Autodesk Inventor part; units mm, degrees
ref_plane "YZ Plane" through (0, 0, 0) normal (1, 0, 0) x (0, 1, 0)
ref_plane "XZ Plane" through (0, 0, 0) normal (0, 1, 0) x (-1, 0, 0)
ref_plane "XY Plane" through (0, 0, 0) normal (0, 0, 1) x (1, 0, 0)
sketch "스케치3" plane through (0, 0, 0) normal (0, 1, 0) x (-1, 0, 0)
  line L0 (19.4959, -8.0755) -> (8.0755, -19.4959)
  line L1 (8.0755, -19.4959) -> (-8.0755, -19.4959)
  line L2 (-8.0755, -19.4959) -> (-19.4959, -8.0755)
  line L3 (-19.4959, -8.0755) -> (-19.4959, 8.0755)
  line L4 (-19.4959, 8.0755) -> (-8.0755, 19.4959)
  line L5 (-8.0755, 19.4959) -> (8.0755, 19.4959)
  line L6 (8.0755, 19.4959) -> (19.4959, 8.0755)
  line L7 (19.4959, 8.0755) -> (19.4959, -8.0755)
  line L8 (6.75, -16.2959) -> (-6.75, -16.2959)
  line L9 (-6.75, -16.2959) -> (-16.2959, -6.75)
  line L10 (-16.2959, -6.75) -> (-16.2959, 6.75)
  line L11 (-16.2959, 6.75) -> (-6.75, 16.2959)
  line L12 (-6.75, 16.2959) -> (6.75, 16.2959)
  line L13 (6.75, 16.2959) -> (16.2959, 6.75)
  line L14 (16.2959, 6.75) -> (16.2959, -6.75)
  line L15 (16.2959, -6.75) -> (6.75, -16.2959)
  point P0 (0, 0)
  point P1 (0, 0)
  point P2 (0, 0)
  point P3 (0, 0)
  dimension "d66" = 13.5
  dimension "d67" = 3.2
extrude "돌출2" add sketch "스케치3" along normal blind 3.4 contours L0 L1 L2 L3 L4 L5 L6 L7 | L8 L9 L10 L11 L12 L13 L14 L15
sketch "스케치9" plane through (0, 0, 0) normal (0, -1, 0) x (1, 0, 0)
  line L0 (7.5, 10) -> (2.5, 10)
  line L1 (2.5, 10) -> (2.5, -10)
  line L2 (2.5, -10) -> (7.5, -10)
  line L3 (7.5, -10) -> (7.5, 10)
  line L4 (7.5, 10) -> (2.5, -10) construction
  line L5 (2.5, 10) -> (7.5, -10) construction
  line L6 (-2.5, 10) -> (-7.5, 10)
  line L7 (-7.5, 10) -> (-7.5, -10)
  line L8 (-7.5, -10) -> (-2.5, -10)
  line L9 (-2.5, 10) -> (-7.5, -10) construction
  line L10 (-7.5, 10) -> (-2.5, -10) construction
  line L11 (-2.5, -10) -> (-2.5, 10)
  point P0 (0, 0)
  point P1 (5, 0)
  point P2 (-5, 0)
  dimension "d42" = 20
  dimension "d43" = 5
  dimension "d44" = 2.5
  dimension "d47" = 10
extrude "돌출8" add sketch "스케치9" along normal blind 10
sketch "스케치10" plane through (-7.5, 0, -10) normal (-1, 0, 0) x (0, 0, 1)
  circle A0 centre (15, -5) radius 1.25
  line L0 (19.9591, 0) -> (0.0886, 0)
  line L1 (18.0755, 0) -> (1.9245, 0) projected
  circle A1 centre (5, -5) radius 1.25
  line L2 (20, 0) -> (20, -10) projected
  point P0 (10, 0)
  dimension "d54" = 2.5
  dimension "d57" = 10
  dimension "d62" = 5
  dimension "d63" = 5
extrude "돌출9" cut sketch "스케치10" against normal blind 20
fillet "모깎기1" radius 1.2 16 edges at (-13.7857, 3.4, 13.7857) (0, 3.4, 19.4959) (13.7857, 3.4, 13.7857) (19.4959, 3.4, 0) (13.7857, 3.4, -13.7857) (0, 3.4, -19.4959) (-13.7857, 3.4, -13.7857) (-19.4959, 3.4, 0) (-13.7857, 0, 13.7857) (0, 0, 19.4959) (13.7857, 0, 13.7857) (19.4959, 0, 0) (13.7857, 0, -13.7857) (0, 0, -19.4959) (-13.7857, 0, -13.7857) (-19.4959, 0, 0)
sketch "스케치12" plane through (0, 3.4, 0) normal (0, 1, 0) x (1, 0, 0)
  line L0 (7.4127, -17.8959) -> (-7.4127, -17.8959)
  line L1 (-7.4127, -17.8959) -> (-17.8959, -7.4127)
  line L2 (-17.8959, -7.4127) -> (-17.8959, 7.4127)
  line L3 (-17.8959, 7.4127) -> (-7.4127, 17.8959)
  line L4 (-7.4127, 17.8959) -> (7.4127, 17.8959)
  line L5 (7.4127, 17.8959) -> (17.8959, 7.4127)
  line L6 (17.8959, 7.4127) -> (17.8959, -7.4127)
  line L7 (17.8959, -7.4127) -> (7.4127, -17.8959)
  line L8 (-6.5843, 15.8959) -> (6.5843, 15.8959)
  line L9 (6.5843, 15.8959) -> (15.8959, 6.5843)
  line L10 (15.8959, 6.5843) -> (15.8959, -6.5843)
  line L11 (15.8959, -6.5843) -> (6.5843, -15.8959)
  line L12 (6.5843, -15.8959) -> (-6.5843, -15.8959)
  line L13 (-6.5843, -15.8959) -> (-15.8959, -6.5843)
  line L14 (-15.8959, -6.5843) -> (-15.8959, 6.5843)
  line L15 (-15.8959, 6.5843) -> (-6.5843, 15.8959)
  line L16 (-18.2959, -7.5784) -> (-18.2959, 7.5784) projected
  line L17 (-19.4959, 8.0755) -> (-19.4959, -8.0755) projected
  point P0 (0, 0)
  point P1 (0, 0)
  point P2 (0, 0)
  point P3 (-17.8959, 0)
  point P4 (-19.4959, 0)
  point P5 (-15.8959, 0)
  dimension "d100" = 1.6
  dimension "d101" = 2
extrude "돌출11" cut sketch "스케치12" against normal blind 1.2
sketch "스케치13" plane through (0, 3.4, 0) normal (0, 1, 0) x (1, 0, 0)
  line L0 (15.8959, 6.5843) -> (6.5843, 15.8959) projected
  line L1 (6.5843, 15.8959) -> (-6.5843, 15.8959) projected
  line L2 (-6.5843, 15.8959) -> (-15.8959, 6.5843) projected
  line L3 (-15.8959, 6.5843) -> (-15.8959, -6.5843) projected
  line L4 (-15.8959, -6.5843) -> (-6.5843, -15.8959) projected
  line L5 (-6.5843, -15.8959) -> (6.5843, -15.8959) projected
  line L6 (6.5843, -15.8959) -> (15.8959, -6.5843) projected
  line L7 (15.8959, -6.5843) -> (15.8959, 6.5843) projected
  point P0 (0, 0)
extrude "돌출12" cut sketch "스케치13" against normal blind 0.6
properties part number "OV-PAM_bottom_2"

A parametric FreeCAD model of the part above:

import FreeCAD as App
import Part
import Sketcher
from FreeCAD import Vector
Q = App.Units.Quantity


def edges_at(feature, points):
    """Names of the edges that pass closest to the given points."""
    edges = feature.Shape.Edges
    near = lambda p: min(range(len(edges)), key=lambda i: edges[i].distToShape(Part.Vertex(*p))[0])
    return sorted({f"Edge{near(p) + 1}" for p in points})

doc = App.newDocument("Part")
params = doc.addObject("Spreadsheet::Sheet", "Params")
for row, (alias, value) in enumerate([
    ("pad1_length", "3.4 mm"),
    ("sketch2_width", "5 mm"),
    ("sketch2_height", "20 mm"),
    ("pad2_length", "10 mm"),
    ("sketch3_diameter", "2.5 mm"),
    ("pocket1_length", "20 mm"),
    ("fillet_radius", "1.2 mm"),
    ("pocket2_length", "1.2 mm"),
    ("pocket3_length", "0.6 mm"),
], start=1):
    params.set(f"A{row}", alias)
    params.set(f"B{row}", "=" + value)
    params.setAlias(f"B{row}", alias)

body = doc.addObject("PartDesign::Body", "Body")

sketch1 = body.newObject("Sketcher::SketchObject", "Sketch")
sketch1.AttachmentSupport = (doc.getObject("XZ_Plane"), [""])
sketch1.MapMode = "FlatFace"
sketch1.addGeometry(Part.LineSegment(Vector(-8.0755, -19.4959, 0), Vector(-19.4959, -8.0755, 0)), False)
sketch1.addGeometry(Part.LineSegment(Vector(-19.4959, -8.0755, 0), Vector(-19.4959, 8.0755, 0)), False)
sketch1.addGeometry(Part.LineSegment(Vector(-19.4959, 8.0755, 0), Vector(-8.0755, 19.4959, 0)), False)
sketch1.addGeometry(Part.LineSegment(Vector(-8.0755, 19.4959, 0), Vector(8.0755, 19.4959, 0)), False)
sketch1.addGeometry(Part.LineSegment(Vector(8.0755, 19.4959, 0), Vector(19.4959, 8.0755, 0)), False)
sketch1.addGeometry(Part.LineSegment(Vector(19.4959, 8.0755, 0), Vector(19.4959, -8.0755, 0)), False)
sketch1.addGeometry(Part.LineSegment(Vector(19.4959, -8.0755, 0), Vector(8.0755, -19.4959, 0)), False)
sketch1.addGeometry(Part.LineSegment(Vector(8.0755, -19.4959, 0), Vector(-8.0755, -19.4959, 0)), False)
sketch1.addConstraint(Sketcher.Constraint("Coincident", 0, 2, 1, 1))
sketch1.addConstraint(Sketcher.Constraint("Coincident", 1, 2, 2, 1))
sketch1.addConstraint(Sketcher.Constraint("Coincident", 2, 2, 3, 1))
sketch1.addConstraint(Sketcher.Constraint("Coincident", 3, 2, 4, 1))
sketch1.addConstraint(Sketcher.Constraint("Coincident", 4, 2, 5, 1))
sketch1.addConstraint(Sketcher.Constraint("Coincident", 5, 2, 6, 1))
sketch1.addConstraint(Sketcher.Constraint("Coincident", 6, 2, 7, 1))
sketch1.addConstraint(Sketcher.Constraint("Coincident", 7, 2, 0, 1))
sketch1.addConstraint(Sketcher.Constraint("Vertical", 1))
sketch1.addConstraint(Sketcher.Constraint("Horizontal", 3))
sketch1.addConstraint(Sketcher.Constraint("Vertical", 5))
sketch1.addConstraint(Sketcher.Constraint("Horizontal", 7))
sketch1.addConstraint(Sketcher.Constraint("Symmetric", 0, 2, 4, 2, -1, 1))
sketch1.addConstraint(Sketcher.Constraint("Symmetric", 2, 2, 6, 2, -1, 1))
sketch1.addConstraint(Sketcher.Constraint("Perpendicular", 0, 2))
sketch1.addConstraint(Sketcher.Constraint("Perpendicular", 2, 4))
sketch1.addConstraint(Sketcher.Constraint("Perpendicular", 4, 6))
sketch1.addConstraint(Sketcher.Constraint("Horizontal", 1, 2, 4, 2))
sketch1.addConstraint(Sketcher.Constraint("Vertical", 3, 2, 6, 2))
sketch1.addConstraint(Sketcher.Constraint("Equal", 7, 1))
sketch1.addConstraint(Sketcher.Constraint("DistanceX", 3, 1, 3, 2, Q("16.151 mm")))
sketch1.addConstraint(Sketcher.Constraint("Distance", 0, Q("16.151 mm")))
pad1 = body.newObject("PartDesign::Pad", "Pad")
pad1.Profile = sketch1
pad1.setExpression("Length", "Params.pad1_length")
pad1.Reversed = True

sketch2 = body.newObject("Sketcher::SketchObject", "Sketch001")
sketch2.AttachmentSupport = (doc.getObject("XZ_Plane"), [""])
sketch2.MapMode = "FlatFace"
sketch2.addGeometry(Part.LineSegment(Vector(7.5, -10, 0), Vector(7.5, 10, 0)), False)
sketch2.addGeometry(Part.LineSegment(Vector(7.5, 10, 0), Vector(2.5, 10, 0)), False)
sketch2.addGeometry(Part.LineSegment(Vector(2.5, 10, 0), Vector(2.5, -10, 0)), False)
sketch2.addGeometry(Part.LineSegment(Vector(2.5, -10, 0), Vector(7.5, -10, 0)), False)
sketch2.addGeometry(Part.LineSegment(Vector(-2.5, -10, 0), Vector(-2.5, 10, 0)), False)
sketch2.addGeometry(Part.LineSegment(Vector(-2.5, 10, 0), Vector(-7.5, 10, 0)), False)
sketch2.addGeometry(Part.LineSegment(Vector(-7.5, 10, 0), Vector(-7.5, -10, 0)), False)
sketch2.addGeometry(Part.LineSegment(Vector(-7.5, -10, 0), Vector(-2.5, -10, 0)), False)
sketch2.addConstraint(Sketcher.Constraint("Coincident", 0, 2, 1, 1))
sketch2.addConstraint(Sketcher.Constraint("Coincident", 1, 2, 2, 1))
sketch2.addConstraint(Sketcher.Constraint("Coincident", 2, 2, 3, 1))
sketch2.addConstraint(Sketcher.Constraint("Coincident", 3, 2, 0, 1))
sketch2.addConstraint(Sketcher.Constraint("Coincident", 4, 2, 5, 1))
sketch2.addConstraint(Sketcher.Constraint("Coincident", 5, 2, 6, 1))
sketch2.addConstraint(Sketcher.Constraint("Coincident", 6, 2, 7, 1))
sketch2.addConstraint(Sketcher.Constraint("Coincident", 7, 2, 4, 1))
sketch2.addConstraint(Sketcher.Constraint("Vertical", 0))
sketch2.addConstraint(Sketcher.Constraint("Horizontal", 1))
sketch2.addConstraint(Sketcher.Constraint("Vertical", 2))
sketch2.addConstraint(Sketcher.Constraint("Horizontal", 3))
sketch2.addConstraint(Sketcher.Constraint("Vertical", 4))
sketch2.addConstraint(Sketcher.Constraint("Horizontal", 5))
sketch2.addConstraint(Sketcher.Constraint("Vertical", 6))
sketch2.addConstraint(Sketcher.Constraint("Horizontal", 7))
sketch2.addConstraint(Sketcher.Constraint("Symmetric", 2, 2, 4, 2, -1, 1))
sketch2.addConstraint(Sketcher.Constraint("Symmetric", 0, 2, 6, 2, -1, 1))
sketch2.addConstraint(Sketcher.Constraint("Horizontal", 1, 2, 4, 2))
sketch2.addConstraint(Sketcher.Constraint("DistanceX", 1, 2, 1, 1, Q("5 mm")))
sketch2.addConstraint(Sketcher.Constraint("DistanceY", 0, 1, 0, 2, Q("20 mm")))
sketch2.addConstraint(Sketcher.Constraint("DistanceX", 4, 2, 1, 2, Q("5 mm")))
sketch2.setExpression("Constraints[19]", "Params.sketch2_width")
sketch2.setExpression("Constraints[20]", "Params.sketch2_height")
pad2 = body.newObject("PartDesign::Pad", "Pad001")
pad2.Profile = sketch2
pad2.setExpression("Length", "Params.pad2_length")

sketch3 = body.newObject("Sketcher::SketchObject", "Sketch002")
sketch3.AttachmentSupport = (doc.getObject("YZ_Plane"), [""])
sketch3.MapMode = "FlatFace"
sketch3.AttachmentOffset = App.Placement(Vector(0, 0, -7.5), App.Rotation())
sketch3.addGeometry(Part.Circle(Vector(-5, 5, 0), Vector(0, 0, 1), 1.25), False)
sketch3.addGeometry(Part.Circle(Vector(-5, -5, 0), Vector(0, 0, 1), 1.25), False)
sketch3.addConstraint(Sketcher.Constraint("Equal", 0, 1))
sketch3.addConstraint(Sketcher.Constraint("Symmetric", 0, 3, 1, 3, -1))
sketch3.addConstraint(Sketcher.Constraint("Diameter", 0, Q("2.5 mm")))
sketch3.addConstraint(Sketcher.Constraint("DistanceX", 0, 3, -1, 1, Q("5 mm")))
sketch3.addConstraint(Sketcher.Constraint("DistanceY", -1, 1, 0, 3, Q("5 mm")))
sketch3.setExpression("Constraints[2]", "Params.sketch3_diameter")
pocket1 = body.newObject("PartDesign::Pocket", "Pocket")
pocket1.Profile = sketch3
pocket1.setExpression("Length", "Params.pocket1_length")
pocket1.Reversed = True
doc.recompute()

fillet = body.newObject("PartDesign::Fillet", "Fillet")
fillet.Base = (pocket1, edges_at(pocket1, [
    (-13.786, 3.4, 13.786),
    (0, 3.4, 19.496),
    (13.786, 3.4, 13.786),
    (19.496, 3.4, 0),
    (13.786, 3.4, -13.786),
    (0, 3.4, -19.496),
    (-13.786, 3.4, -13.786),
    (-19.496, 3.4, 0),
    (-13.786, 0, 13.786),
    (0, 0, 19.496),
    (13.786, 0, 13.786),
    (19.496, 0, 0),
    (13.786, 0, -13.786),
    (0, 0, -19.496),
    (-13.786, 0, -13.786),
    (-19.496, 0, 0),
]))
fillet.setExpression("Radius", "Params.fillet_radius")

sketch4 = body.newObject("Sketcher::SketchObject", "Sketch003")
sketch4.AttachmentSupport = (doc.getObject("XZ_Plane"), [""])
sketch4.MapMode = "FlatFace"
sketch4.AttachmentOffset = App.Placement(Vector(0, 0, -3.4), App.Rotation())
sketch4.addGeometry(Part.LineSegment(Vector(-7.4127, 17.8959, 0), Vector(7.4127, 17.8959, 0)), False)
sketch4.addGeometry(Part.LineSegment(Vector(7.4127, 17.8959, 0), Vector(17.8959, 7.4127, 0)), False)
sketch4.addGeometry(Part.LineSegment(Vector(17.8959, 7.4127, 0), Vector(17.8959, -7.4127, 0)), False)
sketch4.addGeometry(Part.LineSegment(Vector(17.8959, -7.4127, 0), Vector(7.4127, -17.8959, 0)), False)
sketch4.addGeometry(Part.LineSegment(Vector(7.4127, -17.8959, 0), Vector(-7.4127, -17.8959, 0)), False)
sketch4.addGeometry(Part.LineSegment(Vector(-7.4127, -17.8959, 0), Vector(-17.8959, -7.4127, 0)), False)
sketch4.addGeometry(Part.LineSegment(Vector(-17.8959, -7.4127, 0), Vector(-17.8959, 7.4127, 0)), False)
sketch4.addGeometry(Part.LineSegment(Vector(-17.8959, 7.4127, 0), Vector(-7.4127, 17.8959, 0)), False)
sketch4.addGeometry(Part.LineSegment(Vector(-15.8959, -6.5843, 0), Vector(-6.5843, -15.8959, 0)), False)
sketch4.addGeometry(Part.LineSegment(Vector(-6.5843, -15.8959, 0), Vector(6.5843, -15.8959, 0)), False)
sketch4.addGeometry(Part.LineSegment(Vector(6.5843, -15.8959, 0), Vector(15.8959, -6.5843, 0)), False)
sketch4.addGeometry(Part.LineSegment(Vector(15.8959, -6.5843, 0), Vector(15.8959, 6.5843, 0)), False)
sketch4.addGeometry(Part.LineSegment(Vector(15.8959, 6.5843, 0), Vector(6.5843, 15.8959, 0)), False)
sketch4.addGeometry(Part.LineSegment(Vector(6.5843, 15.8959, 0), Vector(-6.5843, 15.8959, 0)), False)
sketch4.addGeometry(Part.LineSegment(Vector(-6.5843, 15.8959, 0), Vector(-15.8959, 6.5843, 0)), False)
sketch4.addGeometry(Part.LineSegment(Vector(-15.8959, 6.5843, 0), Vector(-15.8959, -6.5843, 0)), False)
sketch4.addConstraint(Sketcher.Constraint("Coincident", 0, 2, 1, 1))
sketch4.addConstraint(Sketcher.Constraint("Coincident", 1, 2, 2, 1))
sketch4.addConstraint(Sketcher.Constraint("Coincident", 2, 2, 3, 1))
sketch4.addConstraint(Sketcher.Constraint("Coincident", 3, 2, 4, 1))
sketch4.addConstraint(Sketcher.Constraint("Coincident", 4, 2, 5, 1))
sketch4.addConstraint(Sketcher.Constraint("Coincident", 5, 2, 6, 1))
sketch4.addConstraint(Sketcher.Constraint("Coincident", 6, 2, 7, 1))
sketch4.addConstraint(Sketcher.Constraint("Coincident", 7, 2, 0, 1))
sketch4.addConstraint(Sketcher.Constraint("Coincident", 8, 2, 9, 1))
sketch4.addConstraint(Sketcher.Constraint("Coincident", 9, 2, 10, 1))
sketch4.addConstraint(Sketcher.Constraint("Coincident", 10, 2, 11, 1))
sketch4.addConstraint(Sketcher.Constraint("Coincident", 11, 2, 12, 1))
sketch4.addConstraint(Sketcher.Constraint("Coincident", 12, 2, 13, 1))
sketch4.addConstraint(Sketcher.Constraint("Coincident", 13, 2, 14, 1))
sketch4.addConstraint(Sketcher.Constraint("Coincident", 14, 2, 15, 1))
sketch4.addConstraint(Sketcher.Constraint("Coincident", 15, 2, 8, 1))
sketch4.addConstraint(Sketcher.Constraint("Horizontal", 0))
sketch4.addConstraint(Sketcher.Constraint("Vertical", 2))
sketch4.addConstraint(Sketcher.Constraint("Horizontal", 4))
sketch4.addConstraint(Sketcher.Constraint("Vertical", 6))
sketch4.addConstraint(Sketcher.Constraint("Horizontal", 9))
sketch4.addConstraint(Sketcher.Constraint("Vertical", 11))
sketch4.addConstraint(Sketcher.Constraint("Horizontal", 13))
sketch4.addConstraint(Sketcher.Constraint("Vertical", 15))
sketch4.addConstraint(Sketcher.Constraint("Symmetric", 0, 2, 4, 2, -1, 1))
sketch4.addConstraint(Sketcher.Constraint("Symmetric", 1, 2, 5, 2, -1, 1))
sketch4.addConstraint(Sketcher.Constraint("Symmetric", 8, 2, 12, 2, -1, 1))
sketch4.addConstraint(Sketcher.Constraint("Symmetric", 10, 2, 14, 2, -1, 1))
sketch4.addConstraint(Sketcher.Constraint("Perpendicular", 1, 3))
sketch4.addConstraint(Sketcher.Constraint("Perpendicular", 5, 7))
sketch4.addConstraint(Sketcher.Constraint("Perpendicular", 7, 8))
sketch4.addConstraint(Sketcher.Constraint("Perpendicular", 8, 10))
sketch4.addConstraint(Sketcher.Constraint("Perpendicular", 10, 12))
sketch4.addConstraint(Sketcher.Constraint("Perpendicular", 12, 14))
sketch4.addConstraint(Sketcher.Constraint("Horizontal", 2, 2, 5, 2))
sketch4.addConstraint(Sketcher.Constraint("Horizontal", 1, 2, 6, 2))
sketch4.addConstraint(Sketcher.Constraint("Horizontal", 11, 2, 14, 2))
sketch4.addConstraint(Sketcher.Constraint("Vertical", 0, 2, 3, 2))
sketch4.addConstraint(Sketcher.Constraint("Equal", 4, 2))
sketch4.addConstraint(Sketcher.Constraint("Equal", 13, 11))
sketch4.addConstraint(Sketcher.Constraint("DistanceY", 4, 2, 8, 2, Q("2 mm")))
sketch4.addConstraint(Sketcher.Constraint("DistanceX", 0, 1, 0, 2, Q("14.8254 mm")))
sketch4.addConstraint(Sketcher.Constraint("DistanceX", 9, 1, 9, 2, Q("13.1686 mm")))
sketch4.addConstraint(Sketcher.Constraint("DistanceY", -1, 1, 0, 2, Q("17.896 mm")))
pocket2 = body.newObject("PartDesign::Pocket", "Pocket001")
pocket2.Profile = sketch4
pocket2.setExpression("Length", "Params.pocket2_length")
pocket2.Reversed = True

sketch5 = body.newObject("Sketcher::SketchObject", "Sketch004")
sketch5.AttachmentSupport = (doc.getObject("XZ_Plane"), [""])
sketch5.MapMode = "FlatFace"
sketch5.AttachmentOffset = App.Placement(Vector(0, 0, -3.4), App.Rotation())
sketch5.addGeometry(Part.LineSegment(Vector(15.8959, 6.5843, 0), Vector(15.8959, -6.5843, 0)), False)
sketch5.addGeometry(Part.LineSegment(Vector(15.8959, -6.5843, 0), Vector(6.5843, -15.8959, 0)), False)
sketch5.addGeometry(Part.LineSegment(Vector(6.5843, -15.8959, 0), Vector(-6.5843, -15.8959, 0)), False)
sketch5.addGeometry(Part.LineSegment(Vector(-6.5843, -15.8959, 0), Vector(-15.8959, -6.5843, 0)), False)
sketch5.addGeometry(Part.LineSegment(Vector(-15.8959, -6.5843, 0), Vector(-15.8959, 6.5843, 0)), False)
sketch5.addGeometry(Part.LineSegment(Vector(-15.8959, 6.5843, 0), Vector(-6.5843, 15.8959, 0)), False)
sketch5.addGeometry(Part.LineSegment(Vector(-6.5843, 15.8959, 0), Vector(6.5843, 15.8959, 0)), False)
sketch5.addGeometry(Part.LineSegment(Vector(6.5843, 15.8959, 0), Vector(15.8959, 6.5843, 0)), False)
sketch5.addConstraint(Sketcher.Constraint("Coincident", 0, 2, 1, 1))
sketch5.addConstraint(Sketcher.Constraint("Coincident", 1, 2, 2, 1))
sketch5.addConstraint(Sketcher.Constraint("Coincident", 2, 2, 3, 1))
sketch5.addConstraint(Sketcher.Constraint("Coincident", 3, 2, 4, 1))
sketch5.addConstraint(Sketcher.Constraint("Coincident", 4, 2, 5, 1))
sketch5.addConstraint(Sketcher.Constraint("Coincident", 5, 2, 6, 1))
sketch5.addConstraint(Sketcher.Constraint("Coincident", 6, 2, 7, 1))
sketch5.addConstraint(Sketcher.Constraint("Coincident", 7, 2, 0, 1))
sketch5.addConstraint(Sketcher.Constraint("Vertical", 0))
sketch5.addConstraint(Sketcher.Constraint("Horizontal", 2))
sketch5.addConstraint(Sketcher.Constraint("Vertical", 4))
sketch5.addConstraint(Sketcher.Constraint("Horizontal", 6))
sketch5.addConstraint(Sketcher.Constraint("Symmetric", 0, 2, 4, 2, -1, 1))
sketch5.addConstraint(Sketcher.Constraint("Symmetric", 1, 2, 5, 2, -1, 1))
sketch5.addConstraint(Sketcher.Constraint("Perpendicular", 1, 3))
sketch5.addConstraint(Sketcher.Constraint("Perpendicular", 5, 7))
sketch5.addConstraint(Sketcher.Constraint("Horizontal", 0, 2, 3, 2))
sketch5.addConstraint(Sketcher.Constraint("Horizontal", 4, 2, 7, 2))
sketch5.addConstraint(Sketcher.Constraint("Vertical", 2, 2, 5, 2))
sketch5.addConstraint(Sketcher.Constraint("Equal", 6, 0))
sketch5.addConstraint(Sketcher.Constraint("DistanceX", 2, 2, 2, 1, Q("13.1686 mm")))
sketch5.addConstraint(Sketcher.Constraint("DistanceX", -1, 1, 0, 2, Q("15.896 mm")))
pocket3 = body.newObject("PartDesign::Pocket", "Pocket002")
pocket3.Profile = sketch5
pocket3.setExpression("Length", "Params.pocket3_length")
pocket3.Reversed = True

doc.recompute()
